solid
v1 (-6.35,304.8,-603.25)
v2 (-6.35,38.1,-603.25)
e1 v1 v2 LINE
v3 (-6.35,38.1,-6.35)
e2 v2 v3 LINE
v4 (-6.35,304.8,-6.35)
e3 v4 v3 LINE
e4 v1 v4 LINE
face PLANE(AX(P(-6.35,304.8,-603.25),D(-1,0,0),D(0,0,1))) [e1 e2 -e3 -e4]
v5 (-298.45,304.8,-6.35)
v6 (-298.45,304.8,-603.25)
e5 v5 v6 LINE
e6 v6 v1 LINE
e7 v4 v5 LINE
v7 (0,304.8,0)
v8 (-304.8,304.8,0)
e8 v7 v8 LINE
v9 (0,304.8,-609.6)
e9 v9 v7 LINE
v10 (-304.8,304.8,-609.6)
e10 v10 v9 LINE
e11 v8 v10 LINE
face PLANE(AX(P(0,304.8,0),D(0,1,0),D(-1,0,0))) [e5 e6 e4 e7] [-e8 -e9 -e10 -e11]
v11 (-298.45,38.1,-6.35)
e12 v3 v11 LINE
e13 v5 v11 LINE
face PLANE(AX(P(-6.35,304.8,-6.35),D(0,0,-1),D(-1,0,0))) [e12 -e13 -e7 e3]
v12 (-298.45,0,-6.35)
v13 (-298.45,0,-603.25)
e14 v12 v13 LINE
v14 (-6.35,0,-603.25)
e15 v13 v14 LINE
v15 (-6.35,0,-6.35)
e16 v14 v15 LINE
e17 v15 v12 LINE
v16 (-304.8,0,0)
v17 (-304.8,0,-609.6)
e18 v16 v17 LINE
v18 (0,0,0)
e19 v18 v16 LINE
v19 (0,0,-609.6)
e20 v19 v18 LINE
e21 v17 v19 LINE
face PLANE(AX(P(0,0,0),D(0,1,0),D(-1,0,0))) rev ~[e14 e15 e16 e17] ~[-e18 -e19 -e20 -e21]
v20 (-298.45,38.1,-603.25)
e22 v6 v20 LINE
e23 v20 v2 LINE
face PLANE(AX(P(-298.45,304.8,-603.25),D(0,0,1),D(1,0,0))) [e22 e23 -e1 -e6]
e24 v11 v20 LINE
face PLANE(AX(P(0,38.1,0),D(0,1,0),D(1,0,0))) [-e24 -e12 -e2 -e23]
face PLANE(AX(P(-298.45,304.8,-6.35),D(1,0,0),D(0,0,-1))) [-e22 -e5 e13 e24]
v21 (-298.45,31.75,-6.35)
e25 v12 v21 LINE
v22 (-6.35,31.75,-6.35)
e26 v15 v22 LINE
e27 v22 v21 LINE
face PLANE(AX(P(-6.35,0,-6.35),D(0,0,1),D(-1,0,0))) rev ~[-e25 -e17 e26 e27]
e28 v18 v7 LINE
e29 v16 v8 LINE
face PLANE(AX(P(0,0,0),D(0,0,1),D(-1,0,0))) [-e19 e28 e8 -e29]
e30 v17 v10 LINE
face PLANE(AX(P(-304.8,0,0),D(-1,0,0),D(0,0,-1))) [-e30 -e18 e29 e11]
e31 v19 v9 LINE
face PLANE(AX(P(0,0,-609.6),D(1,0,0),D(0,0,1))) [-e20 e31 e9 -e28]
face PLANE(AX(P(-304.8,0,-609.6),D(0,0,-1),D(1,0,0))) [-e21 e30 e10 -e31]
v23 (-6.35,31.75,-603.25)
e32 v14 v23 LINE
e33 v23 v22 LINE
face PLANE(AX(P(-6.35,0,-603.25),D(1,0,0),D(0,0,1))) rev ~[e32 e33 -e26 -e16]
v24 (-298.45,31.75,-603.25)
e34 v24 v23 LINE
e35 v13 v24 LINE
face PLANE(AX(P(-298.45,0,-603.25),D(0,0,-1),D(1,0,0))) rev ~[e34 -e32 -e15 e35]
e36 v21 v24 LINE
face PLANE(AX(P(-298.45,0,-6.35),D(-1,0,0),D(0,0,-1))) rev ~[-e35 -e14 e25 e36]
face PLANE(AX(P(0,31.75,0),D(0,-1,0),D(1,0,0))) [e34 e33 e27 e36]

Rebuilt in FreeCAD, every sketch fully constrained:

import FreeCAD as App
import Part
import Sketcher
from FreeCAD import Vector
Q = App.Units.Quantity


def add_polygon(sketch, points):
    """Adds a closed chain of lines whose ends are joined by coincident constraints."""
    first, n = sketch.GeometryCount, len(points)
    for a, b in zip(points, points[1:] + points[:1]):
        sketch.addGeometry(Part.LineSegment(App.Vector(*a, 0), App.Vector(*b, 0)), False)
    for i in range(n):
        sketch.addConstraint(Sketcher.Constraint("Coincident", first + i, 2, first + (i + 1) % n, 1))

doc = App.newDocument("Part")
body = doc.addObject("PartDesign::Body", "Body")

# Sketch on XZ plane
sketch1 = doc.addObject("Sketcher::SketchObject", "Sketch")
body.addObject(sketch1)
sketch1.AttachmentSupport = (doc.XZ_Plane, [""])
sketch1.MapMode = "FlatFace"
add_polygon(sketch1, [(-305, 0), (0, 0), (0, -610), (-305, -610)])  # lines 0-3
sketch1.addConstraint([
    Sketcher.Constraint("Horizontal", 0),
    Sketcher.Constraint("Vertical", 1),
    Sketcher.Constraint("Horizontal", 2),
    Sketcher.Constraint("Vertical", 3),
    Sketcher.Constraint("Coincident", 0, 2, -1, 1),
    Sketcher.Constraint("DistanceX", 0, 1, 0, 2, Q("12 in")),
    Sketcher.Constraint("DistanceY", 1, 2, 1, 1, Q("24 in")),
])
pad1 = doc.addObject("PartDesign::Pad", "Pad")
body.addObject(pad1)
pad1.Profile = sketch1
pad1.Length = Q("12 in")
pad1.Reversed = True

# Sketch on XZ plane
sketch2 = doc.addObject("Sketcher::SketchObject", "Sketch001")
body.addObject(sketch2)
sketch2.AttachmentSupport = (doc.XZ_Plane, [""])
sketch2.MapMode = "FlatFace"
sketch2.AttachmentOffset = App.Placement(Vector(0, 0, -12 * 25.4), App.Rotation())
add_polygon(sketch2, [(-6, -603), (-298, -603), (-298, -6), (-6, -6)])  # lines 0-3
sketch2.addConstraint([
    Sketcher.Constraint("Horizontal", 0),
    Sketcher.Constraint("Vertical", 1),
    Sketcher.Constraint("Horizontal", 2),
    Sketcher.Constraint("Vertical", 3),
    Sketcher.Constraint("DistanceY", 1, 2, -1, 1, Q("0.25 in")),
    Sketcher.Constraint("DistanceX", 2, 2, -1, 1, Q("0.25 in")),
    Sketcher.Constraint("DistanceX", 0, 2, 0, 1, Q("11.5 in")),
    Sketcher.Constraint("DistanceY", 1, 1, 1, 2, Q("23.5 in")),
])
pocket1 = doc.addObject("PartDesign::Pocket", "Pocket")
body.addObject(pocket1)
pocket1.Profile = sketch2
pocket1.Length = Q("10.5 in")
pocket1.Reversed = True

# Sketch on XZ plane
sketch3 = doc.addObject("Sketcher::SketchObject", "Sketch002")
body.addObject(sketch3)
sketch3.AttachmentSupport = (doc.XZ_Plane, [""])
sketch3.MapMode = "FlatFace"
add_polygon(sketch3, [(-6, -6), (-298, -6), (-298, -603), (-6, -603)])  # lines 0-3
sketch3.addConstraint([
    Sketcher.Constraint("Horizontal", 0),
    Sketcher.Constraint("Vertical", 1),
    Sketcher.Constraint("Horizontal", 2),
    Sketcher.Constraint("Vertical", 3),
    Sketcher.Constraint("DistanceY", 0, 2, -1, 1, Q("0.25 in")),
    Sketcher.Constraint("DistanceX", 2, 2, -1, 1, Q("0.25 in")),
    Sketcher.Constraint("DistanceX", 0, 2, 0, 1, Q("11.5 in")),
    Sketcher.Constraint("DistanceY", 1, 2, 1, 1, Q("23.5 in")),
])
pocket2 = doc.addObject("PartDesign::Pocket", "Pocket001")
body.addObject(pocket2)
pocket2.Profile = sketch3
pocket2.Length = Q("1.25 in")

doc.recompute()
